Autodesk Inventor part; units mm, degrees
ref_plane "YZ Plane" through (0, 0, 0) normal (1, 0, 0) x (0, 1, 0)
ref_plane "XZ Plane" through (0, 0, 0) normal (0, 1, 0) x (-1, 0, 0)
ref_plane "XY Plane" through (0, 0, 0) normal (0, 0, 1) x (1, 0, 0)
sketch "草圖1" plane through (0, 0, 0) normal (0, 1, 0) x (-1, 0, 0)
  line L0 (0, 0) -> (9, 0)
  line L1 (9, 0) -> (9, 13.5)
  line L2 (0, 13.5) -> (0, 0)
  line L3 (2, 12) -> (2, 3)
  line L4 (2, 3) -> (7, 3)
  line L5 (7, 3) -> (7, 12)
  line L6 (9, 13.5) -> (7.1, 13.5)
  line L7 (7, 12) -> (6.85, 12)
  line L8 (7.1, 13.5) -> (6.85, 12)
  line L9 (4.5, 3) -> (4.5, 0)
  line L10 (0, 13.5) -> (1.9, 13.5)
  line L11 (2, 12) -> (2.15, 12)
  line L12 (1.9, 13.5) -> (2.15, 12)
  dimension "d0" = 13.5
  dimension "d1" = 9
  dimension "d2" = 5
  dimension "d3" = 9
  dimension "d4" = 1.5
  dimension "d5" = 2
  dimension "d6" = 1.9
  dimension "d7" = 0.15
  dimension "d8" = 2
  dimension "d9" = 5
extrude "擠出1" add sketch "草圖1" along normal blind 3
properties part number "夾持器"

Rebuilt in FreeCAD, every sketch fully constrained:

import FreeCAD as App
import Part
import Sketcher
from FreeCAD import Vector
Q = App.Units.Quantity


def add_polygon(sketch, points):
    """Adds a closed chain of lines whose ends are joined by coincident constraints."""
    first, n = sketch.GeometryCount, len(points)
    for a, b in zip(points, points[1:] + points[:1]):
        sketch.addGeometry(Part.LineSegment(App.Vector(*a, 0), App.Vector(*b, 0)), False)
    for i in range(n):
        sketch.addConstraint(Sketcher.Constraint("Coincident", first + i, 2, first + (i + 1) % n, 1))

doc = App.newDocument("Part")
body = doc.addObject("PartDesign::Body", "Body")

# Sketch on XZ plane
sketch1 = body.newObject("Sketcher::SketchObject", "Sketch")
sketch1.AttachmentSupport = (doc.getObject("XZ_Plane"), [""])
sketch1.MapMode = "FlatFace"
add_polygon(sketch1, [(0, 13.5), (0, 0), (-9, 0), (-9, 13.5), (-7.1, 13.5), (-6.85, 12), (-7, 12), (-7, 3), (-2, 3), (-2, 12), (-2.15, 12), (-1.9, 13.5)])  # lines 0-11
sketch1.addConstraint(Sketcher.Constraint("Vertical", 0))
sketch1.addConstraint(Sketcher.Constraint("Horizontal", 1))
sketch1.addConstraint(Sketcher.Constraint("Vertical", 2))
sketch1.addConstraint(Sketcher.Constraint("Horizontal", 3))
sketch1.addConstraint(Sketcher.Constraint("Horizontal", 5))
sketch1.addConstraint(Sketcher.Constraint("Vertical", 6))
sketch1.addConstraint(Sketcher.Constraint("Horizontal", 7))
sketch1.addConstraint(Sketcher.Constraint("Vertical", 8))
sketch1.addConstraint(Sketcher.Constraint("Horizontal", 9))
sketch1.addConstraint(Sketcher.Constraint("Horizontal", 11))
sketch1.addConstraint(Sketcher.Constraint("Coincident", 0, 2, -1, 1))
sketch1.addConstraint(Sketcher.Constraint("Horizontal", 5, 2, 8, 2))
sketch1.addConstraint(Sketcher.Constraint("Horizontal", 3, 2, 10, 2))
sketch1.addConstraint(Sketcher.Constraint("Equal", 5, 9))
sketch1.addConstraint(Sketcher.Constraint("Equal", 3, 11))
sketch1.addConstraint(Sketcher.Constraint("Equal", 1, 6))
sketch1.addConstraint(Sketcher.Constraint("Equal", 4, 10))
sketch1.addConstraint(Sketcher.Constraint("DistanceX", 1, 2, 1, 1, Q("9 mm")))
sketch1.addConstraint(Sketcher.Constraint("DistanceX", 7, 1, 7, 2, Q("5 mm")))
sketch1.addConstraint(Sketcher.Constraint("DistanceX", 3, 1, 3, 2, Q("1.9 mm")))
sketch1.addConstraint(Sketcher.Constraint("DistanceY", 0, 2, 0, 1, Q("13.5 mm")))
sketch1.addConstraint(Sketcher.Constraint("DistanceX", 5, 2, 5, 1, Q("0.15 mm")))
sketch1.addConstraint(Sketcher.Constraint("DistanceY", 4, 2, 3, 2, Q("1.5 mm")))
pad1 = body.newObject("PartDesign::Pad", "Pad")
pad1.Profile = sketch1
pad1.Length = 3
pad1.Reversed = True

doc.recompute()
